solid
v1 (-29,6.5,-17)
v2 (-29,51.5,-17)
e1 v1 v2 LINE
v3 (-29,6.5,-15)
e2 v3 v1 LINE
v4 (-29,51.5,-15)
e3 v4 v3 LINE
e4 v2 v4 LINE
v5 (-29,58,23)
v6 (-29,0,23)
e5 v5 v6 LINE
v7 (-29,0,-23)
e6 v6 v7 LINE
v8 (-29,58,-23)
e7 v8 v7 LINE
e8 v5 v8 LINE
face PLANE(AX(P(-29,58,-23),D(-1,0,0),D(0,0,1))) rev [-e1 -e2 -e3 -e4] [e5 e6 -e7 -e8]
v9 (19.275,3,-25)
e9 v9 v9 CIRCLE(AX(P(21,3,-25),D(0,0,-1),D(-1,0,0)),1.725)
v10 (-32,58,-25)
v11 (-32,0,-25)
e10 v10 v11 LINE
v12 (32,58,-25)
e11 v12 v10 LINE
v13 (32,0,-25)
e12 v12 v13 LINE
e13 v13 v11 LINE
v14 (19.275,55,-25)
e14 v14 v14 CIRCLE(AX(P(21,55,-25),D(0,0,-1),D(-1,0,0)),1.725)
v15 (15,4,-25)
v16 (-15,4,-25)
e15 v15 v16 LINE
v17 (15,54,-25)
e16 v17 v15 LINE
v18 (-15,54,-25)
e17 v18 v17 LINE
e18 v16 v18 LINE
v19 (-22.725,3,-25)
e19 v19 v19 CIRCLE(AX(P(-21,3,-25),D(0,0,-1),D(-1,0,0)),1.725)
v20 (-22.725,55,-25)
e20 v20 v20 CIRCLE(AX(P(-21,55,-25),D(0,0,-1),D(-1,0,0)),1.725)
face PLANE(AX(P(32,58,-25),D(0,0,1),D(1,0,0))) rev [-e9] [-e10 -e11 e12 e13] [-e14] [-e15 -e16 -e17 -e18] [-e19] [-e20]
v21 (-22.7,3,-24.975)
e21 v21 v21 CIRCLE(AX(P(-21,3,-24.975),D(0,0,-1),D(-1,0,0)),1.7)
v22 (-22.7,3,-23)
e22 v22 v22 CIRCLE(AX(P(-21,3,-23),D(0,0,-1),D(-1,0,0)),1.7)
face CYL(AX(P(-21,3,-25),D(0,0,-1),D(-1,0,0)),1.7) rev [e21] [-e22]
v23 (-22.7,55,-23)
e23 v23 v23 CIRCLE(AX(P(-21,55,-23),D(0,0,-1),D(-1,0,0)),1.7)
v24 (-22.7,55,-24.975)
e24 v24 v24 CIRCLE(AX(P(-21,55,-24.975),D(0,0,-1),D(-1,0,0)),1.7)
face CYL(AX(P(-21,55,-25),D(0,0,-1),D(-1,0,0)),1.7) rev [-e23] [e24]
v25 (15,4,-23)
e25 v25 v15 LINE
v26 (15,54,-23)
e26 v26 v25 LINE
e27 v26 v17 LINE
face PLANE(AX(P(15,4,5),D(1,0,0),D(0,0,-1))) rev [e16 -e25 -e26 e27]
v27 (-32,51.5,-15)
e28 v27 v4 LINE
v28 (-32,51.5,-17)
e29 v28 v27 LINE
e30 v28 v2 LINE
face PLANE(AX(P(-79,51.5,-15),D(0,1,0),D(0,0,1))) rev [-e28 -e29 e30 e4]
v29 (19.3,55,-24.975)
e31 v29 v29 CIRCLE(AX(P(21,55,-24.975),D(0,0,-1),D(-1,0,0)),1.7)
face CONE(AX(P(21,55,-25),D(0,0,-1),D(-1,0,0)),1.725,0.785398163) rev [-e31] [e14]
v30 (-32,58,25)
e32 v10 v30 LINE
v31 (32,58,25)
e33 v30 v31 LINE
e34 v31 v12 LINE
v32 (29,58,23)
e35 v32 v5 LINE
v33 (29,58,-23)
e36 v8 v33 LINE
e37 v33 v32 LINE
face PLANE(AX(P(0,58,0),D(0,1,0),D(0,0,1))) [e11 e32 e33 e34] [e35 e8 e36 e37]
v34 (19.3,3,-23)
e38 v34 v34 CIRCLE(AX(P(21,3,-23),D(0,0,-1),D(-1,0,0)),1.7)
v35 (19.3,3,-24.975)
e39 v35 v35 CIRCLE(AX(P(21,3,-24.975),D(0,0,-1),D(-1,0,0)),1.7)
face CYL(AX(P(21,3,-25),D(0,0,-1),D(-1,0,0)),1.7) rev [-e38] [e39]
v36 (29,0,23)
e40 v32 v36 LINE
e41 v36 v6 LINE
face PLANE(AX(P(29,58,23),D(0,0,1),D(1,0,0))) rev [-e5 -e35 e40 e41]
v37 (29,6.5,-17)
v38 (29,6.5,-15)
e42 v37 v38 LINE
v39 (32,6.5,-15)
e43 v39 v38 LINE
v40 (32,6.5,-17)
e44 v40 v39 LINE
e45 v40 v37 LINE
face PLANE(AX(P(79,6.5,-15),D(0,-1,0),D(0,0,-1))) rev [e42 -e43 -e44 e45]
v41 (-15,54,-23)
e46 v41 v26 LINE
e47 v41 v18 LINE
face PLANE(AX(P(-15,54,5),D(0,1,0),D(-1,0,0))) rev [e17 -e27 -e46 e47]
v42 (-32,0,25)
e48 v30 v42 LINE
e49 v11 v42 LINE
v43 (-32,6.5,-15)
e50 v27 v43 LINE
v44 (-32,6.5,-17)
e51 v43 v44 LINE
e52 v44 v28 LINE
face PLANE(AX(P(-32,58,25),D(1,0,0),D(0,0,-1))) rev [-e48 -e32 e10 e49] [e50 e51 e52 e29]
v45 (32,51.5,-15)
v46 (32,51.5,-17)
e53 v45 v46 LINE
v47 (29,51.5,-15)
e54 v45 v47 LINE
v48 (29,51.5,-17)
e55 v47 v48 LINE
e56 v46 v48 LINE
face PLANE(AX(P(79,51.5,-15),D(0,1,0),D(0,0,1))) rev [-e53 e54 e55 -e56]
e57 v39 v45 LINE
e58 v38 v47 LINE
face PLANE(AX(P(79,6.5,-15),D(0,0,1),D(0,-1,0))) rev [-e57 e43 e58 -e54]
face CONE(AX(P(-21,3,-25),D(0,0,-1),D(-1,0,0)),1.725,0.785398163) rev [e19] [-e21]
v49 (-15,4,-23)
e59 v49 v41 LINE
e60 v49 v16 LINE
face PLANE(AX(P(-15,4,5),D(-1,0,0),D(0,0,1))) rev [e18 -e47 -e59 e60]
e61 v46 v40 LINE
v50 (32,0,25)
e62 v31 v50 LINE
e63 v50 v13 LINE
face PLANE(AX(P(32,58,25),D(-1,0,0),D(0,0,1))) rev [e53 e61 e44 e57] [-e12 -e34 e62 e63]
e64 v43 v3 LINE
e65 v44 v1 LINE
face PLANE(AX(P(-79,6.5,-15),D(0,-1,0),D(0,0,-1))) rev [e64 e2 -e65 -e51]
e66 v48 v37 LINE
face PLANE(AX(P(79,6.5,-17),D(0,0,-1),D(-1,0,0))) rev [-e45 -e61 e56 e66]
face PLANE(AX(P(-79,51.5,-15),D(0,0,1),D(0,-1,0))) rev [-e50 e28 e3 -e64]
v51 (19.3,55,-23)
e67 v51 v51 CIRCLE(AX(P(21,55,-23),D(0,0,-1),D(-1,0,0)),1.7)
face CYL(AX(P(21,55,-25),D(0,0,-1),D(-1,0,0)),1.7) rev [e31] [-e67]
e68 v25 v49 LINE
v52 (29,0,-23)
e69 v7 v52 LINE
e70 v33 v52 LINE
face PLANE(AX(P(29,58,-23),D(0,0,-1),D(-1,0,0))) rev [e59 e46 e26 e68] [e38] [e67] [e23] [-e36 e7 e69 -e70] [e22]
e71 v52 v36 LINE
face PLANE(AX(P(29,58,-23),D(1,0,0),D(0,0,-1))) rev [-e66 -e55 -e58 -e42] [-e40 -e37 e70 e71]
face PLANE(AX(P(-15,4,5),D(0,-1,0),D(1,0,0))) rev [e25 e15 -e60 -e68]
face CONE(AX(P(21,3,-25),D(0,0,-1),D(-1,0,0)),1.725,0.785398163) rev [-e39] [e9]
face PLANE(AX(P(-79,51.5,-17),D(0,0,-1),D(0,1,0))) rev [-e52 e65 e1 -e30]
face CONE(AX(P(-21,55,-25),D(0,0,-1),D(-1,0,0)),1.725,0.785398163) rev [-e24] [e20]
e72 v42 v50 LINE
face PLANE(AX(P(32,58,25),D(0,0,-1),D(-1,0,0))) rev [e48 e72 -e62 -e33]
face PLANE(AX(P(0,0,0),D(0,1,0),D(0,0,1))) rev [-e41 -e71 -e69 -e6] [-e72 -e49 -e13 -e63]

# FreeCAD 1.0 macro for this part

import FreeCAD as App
import Part
import Sketcher


def add_polygon(sketch, points):
    """Adds a closed chain of lines whose ends are joined by coincident constraints."""
    first, n = sketch.GeometryCount, len(points)
    for a, b in zip(points, points[1:] + points[:1]):
        sketch.addGeometry(Part.LineSegment(App.Vector(*a, 0), App.Vector(*b, 0)), False)
    for i in range(n):
        sketch.addConstraint(Sketcher.Constraint("Coincident", first + i, 2, first + (i + 1) % n, 1))

doc = App.newDocument("Part")
body = doc.addObject("PartDesign::Body", "Body")

# Sketch on XZ plane
sketch1 = body.newObject("Sketcher::SketchObject", "Sketch")
sketch1.AttachmentSupport = (doc.getObject("XZ_Plane"), [""])
sketch1.MapMode = "FlatFace"
add_polygon(sketch1, [(-32, -25), (-32, 25), (32, 25), (32, -25)])  # lines 0-3
sketch1.addConstraint([
    Sketcher.Constraint("Vertical", 0),
    Sketcher.Constraint("Horizontal", 1),
    Sketcher.Constraint("Vertical", 2),
    Sketcher.Constraint("Horizontal", 3),
    Sketcher.Constraint("Symmetric", 0, 2, 2, 2, -1, 1),
    Sketcher.Constraint("DistanceX", 1, 1, 1, 2, 64.0),
    Sketcher.Constraint("DistanceY", 0, 1, 0, 2, 50.0),
])
pad1 = body.newObject("PartDesign::Pad", "Pad")
pad1.Profile = sketch1
pad1.Length = 58
pad1.Reversed = True

# Sketch on XZ plane
sketch2 = body.newObject("Sketcher::SketchObject", "Sketch001")
sketch2.AttachmentSupport = (doc.getObject("XZ_Plane"), [""])
sketch2.MapMode = "FlatFace"
add_polygon(sketch2, [(-29, 23), (-29, -23), (29, -23), (29, 23)])  # lines 0-3
sketch2.addConstraint([
    Sketcher.Constraint("Vertical", 0),
    Sketcher.Constraint("Horizontal", 1),
    Sketcher.Constraint("Vertical", 2),
    Sketcher.Constraint("Horizontal", 3),
    Sketcher.Constraint("Symmetric", 0, 2, 2, 2, -1, 1),
    Sketcher.Constraint("DistanceX", 1, 1, 1, 2, 58.0),
    Sketcher.Constraint("DistanceY", 0, 2, 0, 1, 46.0),
])
pocket1 = body.newObject("PartDesign::Pocket", "Pocket")
pocket1.Profile = sketch2
pocket1.Type = "ThroughAll"

# Sketch on YZ plane
sketch3 = body.newObject("Sketcher::SketchObject", "Sketch002")
sketch3.AttachmentSupport = (doc.getObject("YZ_Plane"), [""])
sketch3.MapMode = "FlatFace"
sketch3.AttachmentOffset = App.Placement(App.Vector(0, 0, 29), App.Rotation())
add_polygon(sketch3, [(51.5, -17), (6.5, -17), (6.5, -15), (51.5, -15)])  # lines 0-3
sketch3.addConstraint([
    Sketcher.Constraint("Horizontal", 0),
    Sketcher.Constraint("Vertical", 1),
    Sketcher.Constraint("Horizontal", 2),
    Sketcher.Constraint("Vertical", 3),
    Sketcher.Constraint("DistanceX", 0, 2, 0, 1, 45.0),
    Sketcher.Constraint("DistanceY", 1, 1, 1, 2, 2.0),
    Sketcher.Constraint("DistanceY", 0, 2, -1, 1, 17.0),
    Sketcher.Constraint("DistanceX", -1, 1, 0, 2, 6.5),
])
pocket2 = body.newObject("PartDesign::Pocket", "Pocket001")
pocket2.Profile = sketch3
pocket2.Length = 50
pocket2.Reversed = True

# Sketch on YZ plane
sketch4 = body.newObject("Sketcher::SketchObject", "Sketch003")
sketch4.AttachmentSupport = (doc.getObject("YZ_Plane"), [""])
sketch4.MapMode = "FlatFace"
sketch4.AttachmentOffset = App.Placement(App.Vector(0, 0, -29), App.Rotation())
add_polygon(sketch4, [(51.5, -15), (6.5, -15), (6.5, -17), (51.5, -17)])  # lines 0-3
sketch4.addConstraint([
    Sketcher.Constraint("Horizontal", 0),
    Sketcher.Constraint("Vertical", 1),
    Sketcher.Constraint("Horizontal", 2),
    Sketcher.Constraint("Vertical", 3),
    Sketcher.Constraint("DistanceX", 0, 2, 0, 1, 45.0),
    Sketcher.Constraint("DistanceY", 1, 2, 1, 1, 2.0),
    Sketcher.Constraint("DistanceY", 0, 2, -1, 1, 15.0),
    Sketcher.Constraint("DistanceX", -1, 1, 0, 2, 6.5),
])
pocket3 = body.newObject("PartDesign::Pocket", "Pocket002")
pocket3.Profile = sketch4
pocket3.Length = 50

# Sketch on XY plane
sketch5 = body.newObject("Sketcher::SketchObject", "Sketch004")
sketch5.AttachmentSupport = (doc.getObject("XY_Plane"), [""])
sketch5.MapMode = "FlatFace"
sketch5.AttachmentOffset = App.Placement(App.Vector(0, 0, -25), App.Rotation())
sketch5.addGeometry([
    Part.Circle(App.Vector(21, 55, 0), App.Vector(0, 0, 1), 1.7),
    Part.Circle(App.Vector(21, 3, 0), App.Vector(0, 0, 1), 1.7),
    Part.Circle(App.Vector(-21, 3, 0), App.Vector(0, 0, 1), 1.7),
    Part.Circle(App.Vector(-21, 55, 0), App.Vector(0, 0, 1), 1.7),
], False)
sketch5.addConstraint([
    Sketcher.Constraint("Equal", 0, 1),
    Sketcher.Constraint("Equal", 1, 2),
    Sketcher.Constraint("Equal", 2, 3),
    Sketcher.Constraint("Symmetric", 1, 3, 2, 3, -2),
    Sketcher.Constraint("Symmetric", 0, 3, 3, 3, -2),
    Sketcher.Constraint("Vertical", 0, 3, 1, 3),
    Sketcher.Constraint("Diameter", 0, 3.4),
    Sketcher.Constraint("DistanceX", -1, 1, 0, 3, 21.0),
    Sketcher.Constraint("DistanceY", -1, 1, 0, 3, 55.0),
    Sketcher.Constraint("DistanceY", -1, 1, 1, 3, 3.0),
])
doc.recompute()
hole = body.newObject("PartDesign::Hole", "Hole")
hole.Profile = sketch5
hole.ThreadType = "None"
hole.Diameter = 3.4
hole.DepthType = "Dimension"
hole.Depth = 5
hole.DrillPoint = "Angled"
hole.DrillPointAngle = 118
hole.HoleCutType = "Countersink"
hole.HoleCutDiameter = 3.45
hole.HoleCutCountersinkAngle = 90
hole.Reversed = True

# Sketch on XY plane
sketch6 = body.newObject("Sketcher::SketchObject", "Sketch005")
sketch6.AttachmentSupport = (doc.getObject("XY_Plane"), [""])
sketch6.MapMode = "FlatFace"
sketch6.AttachmentOffset = App.Placement(App.Vector(0, 0, -25), App.Rotation())
add_polygon(sketch6, [(15, 54), (15, 4), (-15, 4), (-15, 54)])  # lines 0-3
sketch6.addConstraint([
    Sketcher.Constraint("Vertical", 0),
    Sketcher.Constraint("Horizontal", 1),
    Sketcher.Constraint("Vertical", 2),
    Sketcher.Constraint("Horizontal", 3),
    Sketcher.Constraint("DistanceX", 1, 2, 1, 1, 30.0),
    Sketcher.Constraint("DistanceY", 0, 2, 0, 1, 50.0),
    Sketcher.Constraint("DistanceX", -1, 1, 0, 2, 15.0),
    Sketcher.Constraint("DistanceY", -1, 1, 0, 2, 4.0),
])
pocket4 = body.newObject("PartDesign::Pocket", "Pocket003")
pocket4.Profile = sketch6
pocket4.Length = 30
pocket4.Reversed = True

doc.recompute()
